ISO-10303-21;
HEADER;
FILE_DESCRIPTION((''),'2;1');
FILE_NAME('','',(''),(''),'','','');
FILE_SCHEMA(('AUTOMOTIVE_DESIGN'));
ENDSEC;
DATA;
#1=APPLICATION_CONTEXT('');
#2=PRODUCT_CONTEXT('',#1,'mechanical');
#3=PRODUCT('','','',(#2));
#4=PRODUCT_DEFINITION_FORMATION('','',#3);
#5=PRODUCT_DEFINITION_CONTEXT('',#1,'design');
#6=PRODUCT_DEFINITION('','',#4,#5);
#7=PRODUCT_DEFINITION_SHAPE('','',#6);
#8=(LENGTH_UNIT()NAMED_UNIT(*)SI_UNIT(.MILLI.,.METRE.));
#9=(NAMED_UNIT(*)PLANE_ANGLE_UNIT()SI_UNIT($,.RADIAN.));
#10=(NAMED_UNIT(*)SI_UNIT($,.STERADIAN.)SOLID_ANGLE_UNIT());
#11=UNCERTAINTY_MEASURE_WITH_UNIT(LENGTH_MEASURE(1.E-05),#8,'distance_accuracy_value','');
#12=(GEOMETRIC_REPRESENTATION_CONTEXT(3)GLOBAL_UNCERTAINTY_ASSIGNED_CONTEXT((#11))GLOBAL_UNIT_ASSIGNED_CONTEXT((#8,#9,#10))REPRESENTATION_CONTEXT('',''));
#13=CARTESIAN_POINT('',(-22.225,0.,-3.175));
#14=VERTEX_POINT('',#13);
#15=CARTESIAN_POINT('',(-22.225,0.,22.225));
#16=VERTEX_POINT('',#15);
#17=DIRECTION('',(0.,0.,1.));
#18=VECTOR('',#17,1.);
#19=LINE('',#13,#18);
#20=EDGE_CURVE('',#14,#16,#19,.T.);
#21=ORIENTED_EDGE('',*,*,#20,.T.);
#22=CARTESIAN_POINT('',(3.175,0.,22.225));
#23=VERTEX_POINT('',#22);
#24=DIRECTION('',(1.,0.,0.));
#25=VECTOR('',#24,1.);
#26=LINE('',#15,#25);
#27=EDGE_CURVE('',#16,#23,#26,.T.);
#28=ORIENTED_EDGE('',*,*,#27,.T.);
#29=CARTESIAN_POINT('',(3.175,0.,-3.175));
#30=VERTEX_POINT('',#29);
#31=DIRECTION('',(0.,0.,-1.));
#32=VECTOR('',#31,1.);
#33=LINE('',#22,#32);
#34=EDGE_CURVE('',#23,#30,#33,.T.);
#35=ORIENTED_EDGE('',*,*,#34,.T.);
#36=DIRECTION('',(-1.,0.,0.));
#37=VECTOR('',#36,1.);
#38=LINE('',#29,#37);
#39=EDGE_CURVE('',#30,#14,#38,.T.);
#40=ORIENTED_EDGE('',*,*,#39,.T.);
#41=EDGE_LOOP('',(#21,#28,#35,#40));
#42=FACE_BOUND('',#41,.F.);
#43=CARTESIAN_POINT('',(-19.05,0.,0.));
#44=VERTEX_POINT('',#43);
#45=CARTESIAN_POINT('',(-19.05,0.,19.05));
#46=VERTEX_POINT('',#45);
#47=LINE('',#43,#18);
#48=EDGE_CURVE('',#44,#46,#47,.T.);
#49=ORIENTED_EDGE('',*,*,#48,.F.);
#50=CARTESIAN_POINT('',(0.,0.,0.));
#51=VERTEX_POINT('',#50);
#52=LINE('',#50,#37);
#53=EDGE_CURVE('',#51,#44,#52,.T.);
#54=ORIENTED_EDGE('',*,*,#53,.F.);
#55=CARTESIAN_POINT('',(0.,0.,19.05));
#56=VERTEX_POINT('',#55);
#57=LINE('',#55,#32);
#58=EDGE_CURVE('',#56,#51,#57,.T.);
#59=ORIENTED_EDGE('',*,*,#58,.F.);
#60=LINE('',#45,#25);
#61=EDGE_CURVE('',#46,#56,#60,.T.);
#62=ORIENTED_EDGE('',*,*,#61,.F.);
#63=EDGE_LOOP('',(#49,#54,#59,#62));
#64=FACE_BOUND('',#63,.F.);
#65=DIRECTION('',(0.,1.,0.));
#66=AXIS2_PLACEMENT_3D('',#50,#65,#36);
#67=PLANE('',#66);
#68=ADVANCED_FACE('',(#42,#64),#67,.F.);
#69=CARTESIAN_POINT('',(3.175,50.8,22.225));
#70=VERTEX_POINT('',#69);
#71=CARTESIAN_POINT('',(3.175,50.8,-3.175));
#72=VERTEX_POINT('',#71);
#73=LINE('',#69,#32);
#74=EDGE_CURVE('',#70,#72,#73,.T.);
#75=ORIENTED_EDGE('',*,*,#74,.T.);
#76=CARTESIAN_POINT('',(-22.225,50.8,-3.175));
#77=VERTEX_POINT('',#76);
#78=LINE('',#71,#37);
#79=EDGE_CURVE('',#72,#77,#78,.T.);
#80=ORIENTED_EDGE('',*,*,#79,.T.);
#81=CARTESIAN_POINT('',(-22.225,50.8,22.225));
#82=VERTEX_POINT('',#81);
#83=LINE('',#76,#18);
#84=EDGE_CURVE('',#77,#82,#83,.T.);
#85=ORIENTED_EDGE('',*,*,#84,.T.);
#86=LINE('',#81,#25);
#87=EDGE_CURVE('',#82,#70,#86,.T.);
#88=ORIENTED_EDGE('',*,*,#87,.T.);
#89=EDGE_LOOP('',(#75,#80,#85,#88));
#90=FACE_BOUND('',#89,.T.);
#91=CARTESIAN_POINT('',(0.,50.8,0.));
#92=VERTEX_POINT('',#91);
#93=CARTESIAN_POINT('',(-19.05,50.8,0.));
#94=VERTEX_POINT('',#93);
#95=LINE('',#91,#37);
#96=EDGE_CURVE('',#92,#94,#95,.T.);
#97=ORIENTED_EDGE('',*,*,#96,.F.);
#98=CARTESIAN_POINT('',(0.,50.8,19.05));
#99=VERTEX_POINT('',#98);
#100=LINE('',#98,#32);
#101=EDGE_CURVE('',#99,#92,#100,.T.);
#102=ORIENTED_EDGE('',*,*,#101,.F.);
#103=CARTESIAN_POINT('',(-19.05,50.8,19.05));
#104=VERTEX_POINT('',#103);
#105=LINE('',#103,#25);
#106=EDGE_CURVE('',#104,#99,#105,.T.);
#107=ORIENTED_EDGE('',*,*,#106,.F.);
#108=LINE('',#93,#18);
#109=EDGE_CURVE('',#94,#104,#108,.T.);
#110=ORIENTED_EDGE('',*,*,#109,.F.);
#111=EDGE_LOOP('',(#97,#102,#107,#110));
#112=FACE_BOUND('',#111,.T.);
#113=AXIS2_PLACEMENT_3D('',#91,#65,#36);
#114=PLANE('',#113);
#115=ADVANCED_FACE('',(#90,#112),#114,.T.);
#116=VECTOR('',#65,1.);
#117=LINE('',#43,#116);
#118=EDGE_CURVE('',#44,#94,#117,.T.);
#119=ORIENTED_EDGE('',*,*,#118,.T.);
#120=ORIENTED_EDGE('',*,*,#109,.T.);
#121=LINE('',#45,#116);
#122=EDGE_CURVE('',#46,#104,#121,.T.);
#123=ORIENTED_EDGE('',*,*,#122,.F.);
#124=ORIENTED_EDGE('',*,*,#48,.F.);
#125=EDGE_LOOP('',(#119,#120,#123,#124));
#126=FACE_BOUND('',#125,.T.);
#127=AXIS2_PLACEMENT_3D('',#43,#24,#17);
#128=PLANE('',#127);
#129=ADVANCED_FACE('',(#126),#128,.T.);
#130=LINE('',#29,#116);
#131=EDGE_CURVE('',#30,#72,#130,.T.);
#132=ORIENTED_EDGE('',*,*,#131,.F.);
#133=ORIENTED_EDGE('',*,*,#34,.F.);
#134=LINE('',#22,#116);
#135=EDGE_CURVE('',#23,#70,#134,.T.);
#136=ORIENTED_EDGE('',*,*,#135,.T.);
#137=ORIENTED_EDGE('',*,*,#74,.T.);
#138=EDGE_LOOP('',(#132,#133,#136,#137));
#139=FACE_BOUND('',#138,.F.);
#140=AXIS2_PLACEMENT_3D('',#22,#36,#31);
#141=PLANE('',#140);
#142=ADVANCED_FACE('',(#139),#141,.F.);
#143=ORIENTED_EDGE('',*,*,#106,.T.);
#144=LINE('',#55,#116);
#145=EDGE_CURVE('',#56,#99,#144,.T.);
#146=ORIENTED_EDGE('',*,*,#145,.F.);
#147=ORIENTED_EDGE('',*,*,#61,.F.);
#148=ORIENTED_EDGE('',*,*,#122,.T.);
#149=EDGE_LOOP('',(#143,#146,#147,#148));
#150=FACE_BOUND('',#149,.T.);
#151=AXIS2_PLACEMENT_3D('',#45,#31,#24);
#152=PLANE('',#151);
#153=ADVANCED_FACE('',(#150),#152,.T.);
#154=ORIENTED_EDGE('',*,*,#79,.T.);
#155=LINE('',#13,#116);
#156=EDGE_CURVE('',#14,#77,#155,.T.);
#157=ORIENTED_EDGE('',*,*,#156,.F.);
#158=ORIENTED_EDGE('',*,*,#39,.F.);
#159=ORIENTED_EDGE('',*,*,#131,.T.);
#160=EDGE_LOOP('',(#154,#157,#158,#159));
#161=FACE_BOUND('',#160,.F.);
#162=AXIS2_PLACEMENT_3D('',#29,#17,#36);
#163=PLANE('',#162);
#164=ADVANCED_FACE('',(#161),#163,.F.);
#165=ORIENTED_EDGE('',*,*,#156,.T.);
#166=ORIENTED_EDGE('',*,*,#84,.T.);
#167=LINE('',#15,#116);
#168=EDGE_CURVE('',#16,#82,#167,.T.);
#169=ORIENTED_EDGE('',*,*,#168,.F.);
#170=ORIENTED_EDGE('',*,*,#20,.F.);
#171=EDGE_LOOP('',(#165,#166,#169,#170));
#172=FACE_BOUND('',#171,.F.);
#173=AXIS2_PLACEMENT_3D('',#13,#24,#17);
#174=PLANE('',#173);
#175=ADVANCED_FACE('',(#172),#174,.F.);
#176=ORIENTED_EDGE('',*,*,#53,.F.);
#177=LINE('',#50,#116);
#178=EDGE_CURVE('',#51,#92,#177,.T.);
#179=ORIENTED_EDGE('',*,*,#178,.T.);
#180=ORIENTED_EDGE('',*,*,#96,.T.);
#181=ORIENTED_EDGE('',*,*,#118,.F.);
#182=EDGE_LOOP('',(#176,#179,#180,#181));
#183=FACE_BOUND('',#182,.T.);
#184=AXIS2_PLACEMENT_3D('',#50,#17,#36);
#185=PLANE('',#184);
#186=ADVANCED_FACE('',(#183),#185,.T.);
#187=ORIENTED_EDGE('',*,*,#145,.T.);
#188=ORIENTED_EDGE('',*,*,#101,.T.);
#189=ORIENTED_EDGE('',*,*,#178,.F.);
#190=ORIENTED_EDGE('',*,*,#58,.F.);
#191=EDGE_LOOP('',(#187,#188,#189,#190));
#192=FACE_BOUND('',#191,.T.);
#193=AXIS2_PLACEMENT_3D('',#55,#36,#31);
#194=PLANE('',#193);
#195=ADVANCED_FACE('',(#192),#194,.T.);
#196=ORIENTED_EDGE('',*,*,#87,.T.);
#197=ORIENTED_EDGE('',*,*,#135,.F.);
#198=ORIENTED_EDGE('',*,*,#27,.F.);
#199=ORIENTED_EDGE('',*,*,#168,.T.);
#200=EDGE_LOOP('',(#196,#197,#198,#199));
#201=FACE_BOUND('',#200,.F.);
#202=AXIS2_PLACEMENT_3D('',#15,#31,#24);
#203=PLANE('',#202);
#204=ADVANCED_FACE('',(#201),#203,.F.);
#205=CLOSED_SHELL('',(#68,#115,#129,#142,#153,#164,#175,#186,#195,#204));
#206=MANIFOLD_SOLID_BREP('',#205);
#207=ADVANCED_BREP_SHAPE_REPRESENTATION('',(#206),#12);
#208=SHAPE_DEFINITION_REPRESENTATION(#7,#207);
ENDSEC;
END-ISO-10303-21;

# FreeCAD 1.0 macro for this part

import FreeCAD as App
import Part
import Sketcher
Q = App.Units.Quantity

doc = App.newDocument("Part")
params = doc.addObject("Spreadsheet::Sheet", "Params")
for row, (alias, value) in enumerate([
    ("sketch1_width", "0.75 in"),
    ("sketch1_width2", "1 in"),
    ("pad1_length", "2 in"),
], start=1):
    params.set(f"A{row}", alias)
    params.set(f"B{row}", "=" + value)
    params.setAlias(f"B{row}", alias)

body = doc.addObject("PartDesign::Body", "Body")

sketch1 = body.newObject("Sketcher::SketchObject", "Sketch")
sketch1.AttachmentSupport = (doc.getObject("XZ_Plane"), [""])
sketch1.MapMode = "FlatFace"
sketch1.addGeometry(Part.LineSegment(App.Vector(3, 22, 0), App.Vector(3, -3, 0)), False)
sketch1.addGeometry(Part.LineSegment(App.Vector(3, -3, 0), App.Vector(-22, -3, 0)), False)
sketch1.addGeometry(Part.LineSegment(App.Vector(-22, -3, 0), App.Vector(-22, 22, 0)), False)
sketch1.addGeometry(Part.LineSegment(App.Vector(-22, 22, 0), App.Vector(3, 22, 0)), False)
sketch1.addGeometry(Part.LineSegment(App.Vector(-19, 0, 0), App.Vector(0, 0, 0)), False)
sketch1.addGeometry(Part.LineSegment(App.Vector(0, 0, 0), App.Vector(0, 19, 0)), False)
sketch1.addGeometry(Part.LineSegment(App.Vector(0, 19, 0), App.Vector(-19, 19, 0)), False)
sketch1.addGeometry(Part.LineSegment(App.Vector(-19, 19, 0), App.Vector(-19, 0, 0)), False)
sketch1.addConstraint(Sketcher.Constraint("Coincident", 0, 2, 1, 1))
sketch1.addConstraint(Sketcher.Constraint("Coincident", 1, 2, 2, 1))
sketch1.addConstraint(Sketcher.Constraint("Coincident", 2, 2, 3, 1))
sketch1.addConstraint(Sketcher.Constraint("Coincident", 3, 2, 0, 1))
sketch1.addConstraint(Sketcher.Constraint("Coincident", 4, 2, 5, 1))
sketch1.addConstraint(Sketcher.Constraint("Coincident", 5, 2, 6, 1))
sketch1.addConstraint(Sketcher.Constraint("Coincident", 6, 2, 7, 1))
sketch1.addConstraint(Sketcher.Constraint("Coincident", 7, 2, 4, 1))
sketch1.addConstraint(Sketcher.Constraint("Vertical", 0))
sketch1.addConstraint(Sketcher.Constraint("Horizontal", 1))
sketch1.addConstraint(Sketcher.Constraint("Vertical", 2))
sketch1.addConstraint(Sketcher.Constraint("Horizontal", 3))
sketch1.addConstraint(Sketcher.Constraint("Horizontal", 4))
sketch1.addConstraint(Sketcher.Constraint("Vertical", 5))
sketch1.addConstraint(Sketcher.Constraint("Horizontal", 6))
sketch1.addConstraint(Sketcher.Constraint("Vertical", 7))
sketch1.addConstraint(Sketcher.Constraint("Coincident", 4, 2, -1, 1))
sketch1.addConstraint(Sketcher.Constraint("Equal", 3, 0))
sketch1.addConstraint(Sketcher.Constraint("Equal", 6, 5))
sketch1.addConstraint(Sketcher.Constraint("DistanceX", 4, 1, 4, 2, Q("0.75 in")))
sketch1.addConstraint(Sketcher.Constraint("DistanceX", 1, 2, 1, 1, Q("1 in")))
sketch1.addConstraint(Sketcher.Constraint("DistanceX", -1, 1, 0, 2, Q("0.125 in")))
sketch1.addConstraint(Sketcher.Constraint("DistanceY", 0, 2, -1, 1, Q("0.125 in")))
sketch1.setExpression("Constraints[19]", "Params.sketch1_width")
sketch1.setExpression("Constraints[20]", "Params.sketch1_width2")
pad1 = body.newObject("PartDesign::Pad", "Pad")
pad1.Profile = sketch1
pad1.setExpression("Length", "Params.pad1_length")
pad1.Reversed = True

doc.recompute()
